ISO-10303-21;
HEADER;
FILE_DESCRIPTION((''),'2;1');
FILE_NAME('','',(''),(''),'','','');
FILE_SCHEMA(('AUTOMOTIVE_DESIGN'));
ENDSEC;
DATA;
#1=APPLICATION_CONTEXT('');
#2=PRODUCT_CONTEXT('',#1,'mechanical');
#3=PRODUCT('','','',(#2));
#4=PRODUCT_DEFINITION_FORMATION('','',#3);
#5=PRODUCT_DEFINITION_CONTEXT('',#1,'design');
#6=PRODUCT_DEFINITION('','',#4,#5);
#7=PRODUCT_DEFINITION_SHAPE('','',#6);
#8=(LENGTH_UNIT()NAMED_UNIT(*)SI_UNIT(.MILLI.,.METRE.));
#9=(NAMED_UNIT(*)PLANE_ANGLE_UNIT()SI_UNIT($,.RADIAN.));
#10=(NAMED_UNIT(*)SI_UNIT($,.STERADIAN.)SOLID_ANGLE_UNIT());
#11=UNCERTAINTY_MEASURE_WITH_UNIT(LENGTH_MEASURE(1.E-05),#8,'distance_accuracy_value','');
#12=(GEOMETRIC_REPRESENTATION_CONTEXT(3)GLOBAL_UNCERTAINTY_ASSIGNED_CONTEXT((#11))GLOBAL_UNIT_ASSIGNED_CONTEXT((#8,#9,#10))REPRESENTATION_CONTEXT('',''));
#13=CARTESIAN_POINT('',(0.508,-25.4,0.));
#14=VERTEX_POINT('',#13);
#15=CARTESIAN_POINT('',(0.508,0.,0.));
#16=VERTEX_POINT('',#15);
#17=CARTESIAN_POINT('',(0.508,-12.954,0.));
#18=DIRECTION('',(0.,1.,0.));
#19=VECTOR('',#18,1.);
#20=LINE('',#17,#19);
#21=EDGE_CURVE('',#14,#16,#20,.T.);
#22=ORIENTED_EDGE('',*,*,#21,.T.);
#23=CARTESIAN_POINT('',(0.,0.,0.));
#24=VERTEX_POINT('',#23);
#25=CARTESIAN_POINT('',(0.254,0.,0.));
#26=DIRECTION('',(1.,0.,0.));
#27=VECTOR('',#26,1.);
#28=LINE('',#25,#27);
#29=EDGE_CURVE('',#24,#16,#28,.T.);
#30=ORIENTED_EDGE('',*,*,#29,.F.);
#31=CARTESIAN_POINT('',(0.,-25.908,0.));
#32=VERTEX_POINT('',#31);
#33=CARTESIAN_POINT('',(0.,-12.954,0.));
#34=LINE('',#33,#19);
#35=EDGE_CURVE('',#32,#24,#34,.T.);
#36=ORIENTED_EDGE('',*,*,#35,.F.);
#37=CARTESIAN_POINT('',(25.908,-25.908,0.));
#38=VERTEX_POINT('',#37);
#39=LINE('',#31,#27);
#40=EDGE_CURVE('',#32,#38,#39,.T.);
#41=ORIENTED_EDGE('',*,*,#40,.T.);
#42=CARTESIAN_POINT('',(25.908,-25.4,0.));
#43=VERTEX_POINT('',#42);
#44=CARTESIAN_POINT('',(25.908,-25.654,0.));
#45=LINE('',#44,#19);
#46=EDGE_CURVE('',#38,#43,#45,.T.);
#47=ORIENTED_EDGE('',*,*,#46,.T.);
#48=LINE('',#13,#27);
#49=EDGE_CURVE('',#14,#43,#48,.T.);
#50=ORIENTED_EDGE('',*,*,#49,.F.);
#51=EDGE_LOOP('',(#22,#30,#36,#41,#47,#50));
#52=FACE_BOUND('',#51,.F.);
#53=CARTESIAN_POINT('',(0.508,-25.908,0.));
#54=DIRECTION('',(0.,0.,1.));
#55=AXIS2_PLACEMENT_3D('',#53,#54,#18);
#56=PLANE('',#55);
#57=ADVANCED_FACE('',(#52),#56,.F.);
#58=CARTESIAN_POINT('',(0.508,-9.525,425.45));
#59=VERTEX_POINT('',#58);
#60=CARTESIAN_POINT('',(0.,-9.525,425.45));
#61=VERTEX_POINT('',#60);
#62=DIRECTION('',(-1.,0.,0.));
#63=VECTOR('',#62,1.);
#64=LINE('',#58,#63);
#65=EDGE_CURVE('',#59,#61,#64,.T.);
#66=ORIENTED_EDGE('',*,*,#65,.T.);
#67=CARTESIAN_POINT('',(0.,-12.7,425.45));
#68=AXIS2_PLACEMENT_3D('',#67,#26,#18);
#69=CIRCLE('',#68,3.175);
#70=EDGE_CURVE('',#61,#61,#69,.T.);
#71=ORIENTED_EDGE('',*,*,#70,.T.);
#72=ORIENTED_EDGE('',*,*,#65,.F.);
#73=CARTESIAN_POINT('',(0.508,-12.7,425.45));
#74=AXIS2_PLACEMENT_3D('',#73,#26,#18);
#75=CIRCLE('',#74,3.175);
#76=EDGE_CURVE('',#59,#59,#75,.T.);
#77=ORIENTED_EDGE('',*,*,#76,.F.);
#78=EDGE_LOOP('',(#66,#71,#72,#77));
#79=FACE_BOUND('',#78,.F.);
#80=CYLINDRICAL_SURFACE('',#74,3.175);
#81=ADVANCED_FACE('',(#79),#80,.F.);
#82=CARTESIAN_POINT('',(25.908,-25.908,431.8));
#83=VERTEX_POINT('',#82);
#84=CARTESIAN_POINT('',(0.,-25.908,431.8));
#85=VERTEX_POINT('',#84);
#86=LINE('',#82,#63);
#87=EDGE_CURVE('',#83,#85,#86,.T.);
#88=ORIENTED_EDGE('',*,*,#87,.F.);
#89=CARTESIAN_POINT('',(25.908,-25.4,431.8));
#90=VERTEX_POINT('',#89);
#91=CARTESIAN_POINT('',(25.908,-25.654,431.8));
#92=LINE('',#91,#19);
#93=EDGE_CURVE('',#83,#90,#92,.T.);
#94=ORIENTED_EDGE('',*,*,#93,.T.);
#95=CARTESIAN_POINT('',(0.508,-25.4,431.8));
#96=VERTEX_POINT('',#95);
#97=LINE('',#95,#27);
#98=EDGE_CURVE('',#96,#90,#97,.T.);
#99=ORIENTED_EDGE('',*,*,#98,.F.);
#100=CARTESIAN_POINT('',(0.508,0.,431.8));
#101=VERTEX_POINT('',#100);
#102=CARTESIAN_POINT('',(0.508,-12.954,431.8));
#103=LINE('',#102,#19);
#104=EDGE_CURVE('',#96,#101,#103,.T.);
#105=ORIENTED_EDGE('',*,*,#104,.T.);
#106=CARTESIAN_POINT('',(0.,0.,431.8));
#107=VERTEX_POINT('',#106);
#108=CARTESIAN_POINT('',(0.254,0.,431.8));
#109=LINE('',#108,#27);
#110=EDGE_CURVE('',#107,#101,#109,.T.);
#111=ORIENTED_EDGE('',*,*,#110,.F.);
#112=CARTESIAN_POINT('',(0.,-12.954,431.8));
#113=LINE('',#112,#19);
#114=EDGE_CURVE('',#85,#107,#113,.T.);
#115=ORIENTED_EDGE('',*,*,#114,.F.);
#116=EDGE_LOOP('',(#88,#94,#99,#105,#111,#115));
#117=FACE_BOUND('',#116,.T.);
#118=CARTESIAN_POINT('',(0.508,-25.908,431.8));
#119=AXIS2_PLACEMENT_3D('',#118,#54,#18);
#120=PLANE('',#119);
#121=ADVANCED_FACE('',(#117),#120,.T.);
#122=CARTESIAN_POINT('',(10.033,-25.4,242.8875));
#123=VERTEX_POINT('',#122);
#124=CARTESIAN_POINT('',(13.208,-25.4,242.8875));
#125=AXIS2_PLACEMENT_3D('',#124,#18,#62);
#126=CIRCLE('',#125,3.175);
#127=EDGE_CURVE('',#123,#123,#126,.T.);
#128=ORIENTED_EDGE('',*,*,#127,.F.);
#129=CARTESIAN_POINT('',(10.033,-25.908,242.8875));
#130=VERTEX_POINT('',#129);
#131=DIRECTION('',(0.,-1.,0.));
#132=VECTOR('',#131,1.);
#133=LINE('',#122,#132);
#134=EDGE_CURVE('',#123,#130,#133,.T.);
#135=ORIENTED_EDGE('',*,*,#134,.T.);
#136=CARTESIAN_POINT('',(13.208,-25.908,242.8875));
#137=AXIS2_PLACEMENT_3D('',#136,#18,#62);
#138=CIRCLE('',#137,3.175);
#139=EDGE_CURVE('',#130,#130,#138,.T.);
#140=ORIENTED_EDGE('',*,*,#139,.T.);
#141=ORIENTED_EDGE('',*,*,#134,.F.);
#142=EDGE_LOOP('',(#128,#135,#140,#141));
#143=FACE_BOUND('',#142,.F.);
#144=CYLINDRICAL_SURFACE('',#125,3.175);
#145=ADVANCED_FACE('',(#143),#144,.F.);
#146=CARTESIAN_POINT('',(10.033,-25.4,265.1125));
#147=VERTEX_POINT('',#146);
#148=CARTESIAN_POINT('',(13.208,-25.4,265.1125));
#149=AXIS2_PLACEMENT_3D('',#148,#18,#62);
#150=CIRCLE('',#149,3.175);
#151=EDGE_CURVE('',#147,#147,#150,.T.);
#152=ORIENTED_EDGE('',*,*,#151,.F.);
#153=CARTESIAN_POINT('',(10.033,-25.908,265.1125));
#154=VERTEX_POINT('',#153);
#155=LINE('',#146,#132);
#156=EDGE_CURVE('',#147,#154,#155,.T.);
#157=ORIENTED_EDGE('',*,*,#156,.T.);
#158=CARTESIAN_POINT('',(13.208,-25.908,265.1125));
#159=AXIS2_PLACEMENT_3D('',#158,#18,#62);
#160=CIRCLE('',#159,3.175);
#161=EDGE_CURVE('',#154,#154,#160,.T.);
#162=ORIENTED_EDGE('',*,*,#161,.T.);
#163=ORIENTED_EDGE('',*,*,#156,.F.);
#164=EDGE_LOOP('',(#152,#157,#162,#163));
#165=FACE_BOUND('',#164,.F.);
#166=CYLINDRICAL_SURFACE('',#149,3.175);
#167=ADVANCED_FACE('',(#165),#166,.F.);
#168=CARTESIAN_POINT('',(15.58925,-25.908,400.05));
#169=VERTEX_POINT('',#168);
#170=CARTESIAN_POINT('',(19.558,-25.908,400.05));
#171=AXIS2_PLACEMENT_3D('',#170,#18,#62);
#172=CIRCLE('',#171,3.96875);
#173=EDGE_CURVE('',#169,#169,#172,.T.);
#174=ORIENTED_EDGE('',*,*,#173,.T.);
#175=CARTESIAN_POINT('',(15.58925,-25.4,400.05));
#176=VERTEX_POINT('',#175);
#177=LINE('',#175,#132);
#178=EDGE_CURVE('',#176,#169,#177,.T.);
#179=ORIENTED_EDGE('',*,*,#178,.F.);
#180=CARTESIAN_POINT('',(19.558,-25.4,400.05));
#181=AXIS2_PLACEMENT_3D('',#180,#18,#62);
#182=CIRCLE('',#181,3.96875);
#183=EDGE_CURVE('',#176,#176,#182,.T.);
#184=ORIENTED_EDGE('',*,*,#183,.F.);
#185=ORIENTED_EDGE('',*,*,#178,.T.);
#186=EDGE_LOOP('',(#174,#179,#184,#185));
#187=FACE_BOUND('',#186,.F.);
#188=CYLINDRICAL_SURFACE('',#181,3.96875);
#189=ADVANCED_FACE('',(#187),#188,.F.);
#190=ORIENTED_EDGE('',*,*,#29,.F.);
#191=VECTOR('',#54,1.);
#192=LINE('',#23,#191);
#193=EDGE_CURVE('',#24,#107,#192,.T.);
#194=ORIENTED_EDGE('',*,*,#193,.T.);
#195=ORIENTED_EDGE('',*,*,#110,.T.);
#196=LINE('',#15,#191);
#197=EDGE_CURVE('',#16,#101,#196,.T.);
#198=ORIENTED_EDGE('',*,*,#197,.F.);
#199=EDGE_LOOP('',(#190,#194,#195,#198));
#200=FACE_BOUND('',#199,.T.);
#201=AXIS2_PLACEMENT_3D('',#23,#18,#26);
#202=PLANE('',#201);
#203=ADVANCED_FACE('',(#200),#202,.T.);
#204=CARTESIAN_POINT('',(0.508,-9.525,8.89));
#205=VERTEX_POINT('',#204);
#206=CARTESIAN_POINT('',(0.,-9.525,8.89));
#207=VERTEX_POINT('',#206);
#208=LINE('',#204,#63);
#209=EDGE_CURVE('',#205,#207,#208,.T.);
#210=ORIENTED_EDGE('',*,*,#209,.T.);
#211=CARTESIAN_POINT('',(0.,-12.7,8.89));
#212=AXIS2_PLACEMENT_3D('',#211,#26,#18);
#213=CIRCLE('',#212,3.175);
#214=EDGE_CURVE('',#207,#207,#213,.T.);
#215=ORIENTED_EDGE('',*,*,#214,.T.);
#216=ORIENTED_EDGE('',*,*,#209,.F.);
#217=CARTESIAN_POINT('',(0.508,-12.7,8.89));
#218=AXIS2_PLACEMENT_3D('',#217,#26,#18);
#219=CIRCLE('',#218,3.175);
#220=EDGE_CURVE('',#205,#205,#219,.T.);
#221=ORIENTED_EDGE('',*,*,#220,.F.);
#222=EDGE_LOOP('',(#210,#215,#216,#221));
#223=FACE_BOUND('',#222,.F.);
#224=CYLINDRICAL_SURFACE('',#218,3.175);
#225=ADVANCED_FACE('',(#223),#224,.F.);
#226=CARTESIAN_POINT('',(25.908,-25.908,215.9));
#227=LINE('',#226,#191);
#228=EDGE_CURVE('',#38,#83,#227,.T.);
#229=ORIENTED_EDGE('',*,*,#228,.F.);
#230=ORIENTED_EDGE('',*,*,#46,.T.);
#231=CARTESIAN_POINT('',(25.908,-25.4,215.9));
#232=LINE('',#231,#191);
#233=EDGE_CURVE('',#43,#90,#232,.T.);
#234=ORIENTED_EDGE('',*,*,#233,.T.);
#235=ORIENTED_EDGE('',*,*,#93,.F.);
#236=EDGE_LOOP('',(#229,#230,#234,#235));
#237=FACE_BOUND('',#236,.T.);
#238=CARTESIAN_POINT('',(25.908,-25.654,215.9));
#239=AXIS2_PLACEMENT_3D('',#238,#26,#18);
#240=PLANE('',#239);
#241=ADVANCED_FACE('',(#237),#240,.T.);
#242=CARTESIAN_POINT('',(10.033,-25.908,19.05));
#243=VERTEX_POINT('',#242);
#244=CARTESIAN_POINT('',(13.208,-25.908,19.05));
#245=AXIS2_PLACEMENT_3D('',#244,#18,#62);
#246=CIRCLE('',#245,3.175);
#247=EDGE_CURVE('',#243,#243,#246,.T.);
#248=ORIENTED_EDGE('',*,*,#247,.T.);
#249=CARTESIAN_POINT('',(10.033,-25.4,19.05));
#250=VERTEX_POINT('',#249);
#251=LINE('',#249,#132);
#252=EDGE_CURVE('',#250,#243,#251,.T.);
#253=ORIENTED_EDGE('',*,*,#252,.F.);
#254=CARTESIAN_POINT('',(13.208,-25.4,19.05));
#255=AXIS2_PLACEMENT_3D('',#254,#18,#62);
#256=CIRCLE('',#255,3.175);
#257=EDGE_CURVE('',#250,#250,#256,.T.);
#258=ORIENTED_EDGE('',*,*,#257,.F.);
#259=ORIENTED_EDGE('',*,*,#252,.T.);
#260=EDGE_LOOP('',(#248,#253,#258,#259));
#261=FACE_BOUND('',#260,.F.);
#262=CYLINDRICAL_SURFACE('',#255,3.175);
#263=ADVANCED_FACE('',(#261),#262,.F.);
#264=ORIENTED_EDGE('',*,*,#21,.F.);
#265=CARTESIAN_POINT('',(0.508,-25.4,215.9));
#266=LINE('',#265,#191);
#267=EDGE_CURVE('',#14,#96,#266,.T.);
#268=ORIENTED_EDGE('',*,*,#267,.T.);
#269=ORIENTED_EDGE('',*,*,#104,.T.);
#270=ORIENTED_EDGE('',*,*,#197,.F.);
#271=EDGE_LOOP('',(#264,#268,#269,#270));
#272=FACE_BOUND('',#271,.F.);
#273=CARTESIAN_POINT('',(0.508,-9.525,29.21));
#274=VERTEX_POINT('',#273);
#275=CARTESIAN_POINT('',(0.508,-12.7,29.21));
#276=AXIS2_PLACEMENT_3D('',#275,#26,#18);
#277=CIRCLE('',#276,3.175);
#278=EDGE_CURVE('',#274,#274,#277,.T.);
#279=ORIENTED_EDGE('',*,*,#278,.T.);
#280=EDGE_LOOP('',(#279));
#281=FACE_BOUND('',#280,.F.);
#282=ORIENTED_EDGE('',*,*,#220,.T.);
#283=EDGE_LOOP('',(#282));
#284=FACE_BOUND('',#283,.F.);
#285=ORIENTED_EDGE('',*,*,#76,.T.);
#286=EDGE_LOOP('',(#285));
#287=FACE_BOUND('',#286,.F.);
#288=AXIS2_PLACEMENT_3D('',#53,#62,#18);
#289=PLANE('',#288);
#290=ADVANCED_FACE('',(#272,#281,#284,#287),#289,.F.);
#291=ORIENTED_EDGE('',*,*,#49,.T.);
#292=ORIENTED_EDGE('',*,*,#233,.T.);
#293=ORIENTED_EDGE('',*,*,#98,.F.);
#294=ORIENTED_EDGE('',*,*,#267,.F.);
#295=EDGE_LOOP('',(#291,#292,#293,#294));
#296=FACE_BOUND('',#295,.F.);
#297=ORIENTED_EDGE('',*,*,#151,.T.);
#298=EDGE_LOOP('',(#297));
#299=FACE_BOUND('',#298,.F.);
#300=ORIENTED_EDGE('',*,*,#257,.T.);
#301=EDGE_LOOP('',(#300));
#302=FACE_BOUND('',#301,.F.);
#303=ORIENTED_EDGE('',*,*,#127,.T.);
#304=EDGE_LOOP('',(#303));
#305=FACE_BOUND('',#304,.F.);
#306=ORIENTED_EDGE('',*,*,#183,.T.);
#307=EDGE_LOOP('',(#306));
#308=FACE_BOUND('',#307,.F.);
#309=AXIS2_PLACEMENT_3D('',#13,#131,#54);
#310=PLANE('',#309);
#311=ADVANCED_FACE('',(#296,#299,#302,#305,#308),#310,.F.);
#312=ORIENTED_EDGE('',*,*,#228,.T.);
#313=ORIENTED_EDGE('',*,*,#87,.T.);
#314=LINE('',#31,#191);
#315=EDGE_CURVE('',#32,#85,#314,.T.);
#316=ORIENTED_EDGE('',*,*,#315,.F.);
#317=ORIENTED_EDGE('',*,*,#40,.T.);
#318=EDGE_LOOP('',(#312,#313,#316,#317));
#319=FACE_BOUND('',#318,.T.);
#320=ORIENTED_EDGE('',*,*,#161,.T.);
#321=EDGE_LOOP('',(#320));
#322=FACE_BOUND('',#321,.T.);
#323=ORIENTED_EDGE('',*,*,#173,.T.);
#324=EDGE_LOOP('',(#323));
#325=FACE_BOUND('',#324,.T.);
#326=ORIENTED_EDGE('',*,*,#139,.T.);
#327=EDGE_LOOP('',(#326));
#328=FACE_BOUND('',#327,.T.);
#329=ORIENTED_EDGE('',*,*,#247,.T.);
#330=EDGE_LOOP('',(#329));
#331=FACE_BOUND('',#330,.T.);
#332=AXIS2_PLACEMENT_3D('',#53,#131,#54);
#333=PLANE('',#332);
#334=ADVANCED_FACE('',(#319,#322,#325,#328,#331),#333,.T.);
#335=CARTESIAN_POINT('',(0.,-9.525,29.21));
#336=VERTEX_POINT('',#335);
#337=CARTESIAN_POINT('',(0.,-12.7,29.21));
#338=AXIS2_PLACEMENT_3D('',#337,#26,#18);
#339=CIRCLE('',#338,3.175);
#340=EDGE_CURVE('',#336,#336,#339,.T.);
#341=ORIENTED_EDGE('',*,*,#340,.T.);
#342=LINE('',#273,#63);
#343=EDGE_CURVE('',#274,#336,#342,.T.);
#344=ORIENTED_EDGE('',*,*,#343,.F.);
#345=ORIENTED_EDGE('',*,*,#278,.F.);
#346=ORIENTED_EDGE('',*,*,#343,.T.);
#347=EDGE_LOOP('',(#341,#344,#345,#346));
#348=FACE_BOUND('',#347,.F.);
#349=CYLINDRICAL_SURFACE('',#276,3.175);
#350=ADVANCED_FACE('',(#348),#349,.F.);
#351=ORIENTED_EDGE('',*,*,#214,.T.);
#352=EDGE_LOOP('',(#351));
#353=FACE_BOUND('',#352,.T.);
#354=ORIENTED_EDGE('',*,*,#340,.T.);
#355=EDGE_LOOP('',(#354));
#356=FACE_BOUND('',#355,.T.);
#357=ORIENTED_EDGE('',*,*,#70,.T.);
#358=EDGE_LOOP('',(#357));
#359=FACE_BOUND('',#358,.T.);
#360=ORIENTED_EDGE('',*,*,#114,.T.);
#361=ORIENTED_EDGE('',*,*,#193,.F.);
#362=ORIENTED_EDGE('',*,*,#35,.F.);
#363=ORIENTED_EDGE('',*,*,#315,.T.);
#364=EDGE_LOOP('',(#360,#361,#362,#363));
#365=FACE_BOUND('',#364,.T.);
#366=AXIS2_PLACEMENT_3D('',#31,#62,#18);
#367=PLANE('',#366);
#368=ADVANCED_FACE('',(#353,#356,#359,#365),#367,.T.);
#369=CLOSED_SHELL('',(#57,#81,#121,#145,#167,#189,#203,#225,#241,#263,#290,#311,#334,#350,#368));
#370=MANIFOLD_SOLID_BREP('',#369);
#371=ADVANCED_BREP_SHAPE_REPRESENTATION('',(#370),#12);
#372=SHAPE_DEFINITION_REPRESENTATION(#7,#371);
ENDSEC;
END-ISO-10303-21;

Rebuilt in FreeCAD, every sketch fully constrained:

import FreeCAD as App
import Part
import Sketcher
Q = App.Units.Quantity

doc = App.newDocument("Part")
body = doc.addObject("PartDesign::Body", "Body")

# Sketch on XY plane
sketch1 = doc.addObject("Sketcher::SketchObject", "Sketch")
body.addObject(sketch1)
sketch1.AttachmentSupport = (doc.XY_Plane, [""])
sketch1.MapMode = "FlatFace"
sketch1.addGeometry(Part.LineSegment(App.Vector(0, 0, 0), App.Vector(0, -25.908, 0)), False)
sketch1.addGeometry(Part.LineSegment(App.Vector(0, -25.908, 0), App.Vector(0.508, -25.908, 0)), False)
sketch1.addGeometry(Part.LineSegment(App.Vector(0.508, -25.908, 0), App.Vector(0.508, 0, 0)), False)
sketch1.addGeometry(Part.LineSegment(App.Vector(0.508, 0, 0), App.Vector(0, 0, 0)), False)
sketch1.addConstraint(Sketcher.Constraint("Coincident", 0, 2, 1, 1))
sketch1.addConstraint(Sketcher.Constraint("Coincident", 1, 2, 2, 1))
sketch1.addConstraint(Sketcher.Constraint("Coincident", 2, 2, 3, 1))
sketch1.addConstraint(Sketcher.Constraint("Coincident", 3, 2, 0, 1))
sketch1.addConstraint(Sketcher.Constraint("Vertical", 0))
sketch1.addConstraint(Sketcher.Constraint("Horizontal", 1))
sketch1.addConstraint(Sketcher.Constraint("Vertical", 2))
sketch1.addConstraint(Sketcher.Constraint("Horizontal", 3))
sketch1.addConstraint(Sketcher.Constraint("Coincident", 3, 2, -1, 1))
sketch1.addConstraint(Sketcher.Constraint("DistanceX", 1, 1, 1, 2, Q("0.02 in")))
sketch1.addConstraint(Sketcher.Constraint("DistanceY", 0, 2, 0, 1, Q("1.02 in")))
pad1 = doc.addObject("PartDesign::Pad", "Pad")
body.addObject(pad1)
pad1.Profile = sketch1
pad1.Length = Q("17 in")

# Sketch on YZ plane
sketch2 = doc.addObject("Sketcher::SketchObject", "Sketch001")
body.addObject(sketch2)
sketch2.AttachmentSupport = (doc.YZ_Plane, [""])
sketch2.MapMode = "FlatFace"
sketch2.AttachmentOffset = App.Placement(App.Vector(0, 0, 0.02 * 25.4), App.Rotation())
sketch2.addGeometry(Part.LineSegment(App.Vector(-25.908, 431.8, 0), App.Vector(-25.908, 0, 0)), False)
sketch2.addGeometry(Part.LineSegment(App.Vector(-25.908, 0, 0), App.Vector(-25.4, 0, 0)), False)
sketch2.addGeometry(Part.LineSegment(App.Vector(-25.4, 0, 0), App.Vector(-25.4, 431.8, 0)), False)
sketch2.addGeometry(Part.LineSegment(App.Vector(-25.4, 431.8, 0), App.Vector(-25.908, 431.8, 0)), False)
sketch2.addConstraint(Sketcher.Constraint("Coincident", 0, 2, 1, 1))
sketch2.addConstraint(Sketcher.Constraint("Coincident", 1, 2, 2, 1))
sketch2.addConstraint(Sketcher.Constraint("Coincident", 2, 2, 3, 1))
sketch2.addConstraint(Sketcher.Constraint("Coincident", 3, 2, 0, 1))
sketch2.addConstraint(Sketcher.Constraint("Vertical", 0))
sketch2.addConstraint(Sketcher.Constraint("Horizontal", 1))
sketch2.addConstraint(Sketcher.Constraint("Vertical", 2))
sketch2.addConstraint(Sketcher.Constraint("Horizontal", 3))
sketch2.addConstraint(Sketcher.Constraint("PointOnObject", 0, 2, -1))
sketch2.addConstraint(Sketcher.Constraint("DistanceY", 0, 2, 0, 1, Q("17 in")))
sketch2.addConstraint(Sketcher.Constraint("DistanceX", 1, 2, -1, 1, Q("1 in")))
sketch2.addConstraint(Sketcher.Constraint("DistanceX", 1, 1, 1, 2, Q("0.02 in")))
pad2 = doc.addObject("PartDesign::Pad", "Pad001")
body.addObject(pad2)
pad2.Profile = sketch2
pad2.Length = Q("1 in")

# Sketch on YZ plane
sketch3 = doc.addObject("Sketcher::SketchObject", "Sketch002")
body.addObject(sketch3)
sketch3.AttachmentSupport = (doc.YZ_Plane, [""])
sketch3.MapMode = "FlatFace"
sketch3.AttachmentOffset = App.Placement(App.Vector(0, 0, 0.02 * 25.4), App.Rotation())
sketch3.addGeometry(Part.Circle(App.Vector(-12.7, 425.45, 0), App.Vector(0, 0, 1), 3.175), False)
sketch3.addGeometry(Part.Circle(App.Vector(-12.7, 29.21, 0), App.Vector(0, 0, 1), 3.175), False)
sketch3.addGeometry(Part.Circle(App.Vector(-12.7, 8.89, 0), App.Vector(0, 0, 1), 3.175), False)
sketch3.addConstraint(Sketcher.Constraint("Equal", 0, 1))
sketch3.addConstraint(Sketcher.Constraint("Equal", 1, 2))
sketch3.addConstraint(Sketcher.Constraint("Vertical", 0, 3, 1, 3))
sketch3.addConstraint(Sketcher.Constraint("Vertical", 1, 3, 2, 3))
sketch3.addConstraint(Sketcher.Constraint("Diameter", 0, Q("0.25 in")))
sketch3.addConstraint(Sketcher.Constraint("DistanceX", 0, 3, -1, 1, Q("0.5 in")))
sketch3.addConstraint(Sketcher.Constraint("DistanceY", 1, 3, 0, 3, Q("15.6 in")))
sketch3.addConstraint(Sketcher.Constraint("DistanceY", 2, 3, 1, 3, Q("0.8 in")))
sketch3.addConstraint(Sketcher.Constraint("DistanceY", -1, 1, 0, 3, Q("16.75 in")))
pocket1 = doc.addObject("PartDesign::Pocket", "Pocket")
body.addObject(pocket1)
pocket1.Profile = sketch3
pocket1.Length = Q("1 in")

# Sketch on XZ plane
sketch4 = doc.addObject("Sketcher::SketchObject", "Sketch003")
body.addObject(sketch4)
sketch4.AttachmentSupport = (doc.XZ_Plane, [""])
sketch4.MapMode = "FlatFace"
sketch4.AttachmentOffset = App.Placement(App.Vector(0, 0, 1 * 25.4), App.Rotation())
sketch4.addGeometry(Part.Circle(App.Vector(19.558, 400.05, 0), App.Vector(0, 0, 1), 3.96875), False)
sketch4.addGeometry(Part.Circle(App.Vector(13.208, 265.1125, 0), App.Vector(0, 0, 1), 3.175), False)
sketch4.addGeometry(Part.Circle(App.Vector(13.208, 242.8875, 0), App.Vector(0, 0, 1), 3.175), False)
sketch4.addGeometry(Part.Circle(App.Vector(13.208, 19.05, 0), App.Vector(0, 0, 1), 3.175), False)
sketch4.addConstraint(Sketcher.Constraint("Equal", 1, 2))
sketch4.addConstraint(Sketcher.Constraint("Equal", 2, 3))
sketch4.addConstraint(Sketcher.Constraint("Vertical", 1, 3, 2, 3))
sketch4.addConstraint(Sketcher.Constraint("Vertical", 2, 3, 3, 3))
sketch4.addConstraint(Sketcher.Constraint("Diameter", 1, Q("0.25 in")))
sketch4.addConstraint(Sketcher.Constraint("Diameter", 0, Q("0.3125 in")))
sketch4.addConstraint(Sketcher.Constraint("DistanceY", 3, 3, 0, 3, Q("15 in")))
sketch4.addConstraint(Sketcher.Constraint("DistanceX", -1, 1, 0, 3, Q("0.77 in")))
sketch4.addConstraint(Sketcher.Constraint("DistanceY", -1, 1, 0, 3, Q("15.75 in")))
sketch4.addConstraint(Sketcher.Constraint("DistanceX", -1, 1, 1, 3, Q("0.52 in")))
sketch4.addConstraint(Sketcher.Constraint("DistanceY", -1, 1, 1, 3, Q("10.4375 in")))
sketch4.addConstraint(Sketcher.Constraint("DistanceY", -1, 1, 2, 3, Q("9.5625 in")))
pocket2 = doc.addObject("PartDesign::Pocket", "Pocket001")
body.addObject(pocket2)
pocket2.Profile = sketch4
pocket2.Length = Q("1 in")
pocket2.Reversed = True

doc.recompute()
